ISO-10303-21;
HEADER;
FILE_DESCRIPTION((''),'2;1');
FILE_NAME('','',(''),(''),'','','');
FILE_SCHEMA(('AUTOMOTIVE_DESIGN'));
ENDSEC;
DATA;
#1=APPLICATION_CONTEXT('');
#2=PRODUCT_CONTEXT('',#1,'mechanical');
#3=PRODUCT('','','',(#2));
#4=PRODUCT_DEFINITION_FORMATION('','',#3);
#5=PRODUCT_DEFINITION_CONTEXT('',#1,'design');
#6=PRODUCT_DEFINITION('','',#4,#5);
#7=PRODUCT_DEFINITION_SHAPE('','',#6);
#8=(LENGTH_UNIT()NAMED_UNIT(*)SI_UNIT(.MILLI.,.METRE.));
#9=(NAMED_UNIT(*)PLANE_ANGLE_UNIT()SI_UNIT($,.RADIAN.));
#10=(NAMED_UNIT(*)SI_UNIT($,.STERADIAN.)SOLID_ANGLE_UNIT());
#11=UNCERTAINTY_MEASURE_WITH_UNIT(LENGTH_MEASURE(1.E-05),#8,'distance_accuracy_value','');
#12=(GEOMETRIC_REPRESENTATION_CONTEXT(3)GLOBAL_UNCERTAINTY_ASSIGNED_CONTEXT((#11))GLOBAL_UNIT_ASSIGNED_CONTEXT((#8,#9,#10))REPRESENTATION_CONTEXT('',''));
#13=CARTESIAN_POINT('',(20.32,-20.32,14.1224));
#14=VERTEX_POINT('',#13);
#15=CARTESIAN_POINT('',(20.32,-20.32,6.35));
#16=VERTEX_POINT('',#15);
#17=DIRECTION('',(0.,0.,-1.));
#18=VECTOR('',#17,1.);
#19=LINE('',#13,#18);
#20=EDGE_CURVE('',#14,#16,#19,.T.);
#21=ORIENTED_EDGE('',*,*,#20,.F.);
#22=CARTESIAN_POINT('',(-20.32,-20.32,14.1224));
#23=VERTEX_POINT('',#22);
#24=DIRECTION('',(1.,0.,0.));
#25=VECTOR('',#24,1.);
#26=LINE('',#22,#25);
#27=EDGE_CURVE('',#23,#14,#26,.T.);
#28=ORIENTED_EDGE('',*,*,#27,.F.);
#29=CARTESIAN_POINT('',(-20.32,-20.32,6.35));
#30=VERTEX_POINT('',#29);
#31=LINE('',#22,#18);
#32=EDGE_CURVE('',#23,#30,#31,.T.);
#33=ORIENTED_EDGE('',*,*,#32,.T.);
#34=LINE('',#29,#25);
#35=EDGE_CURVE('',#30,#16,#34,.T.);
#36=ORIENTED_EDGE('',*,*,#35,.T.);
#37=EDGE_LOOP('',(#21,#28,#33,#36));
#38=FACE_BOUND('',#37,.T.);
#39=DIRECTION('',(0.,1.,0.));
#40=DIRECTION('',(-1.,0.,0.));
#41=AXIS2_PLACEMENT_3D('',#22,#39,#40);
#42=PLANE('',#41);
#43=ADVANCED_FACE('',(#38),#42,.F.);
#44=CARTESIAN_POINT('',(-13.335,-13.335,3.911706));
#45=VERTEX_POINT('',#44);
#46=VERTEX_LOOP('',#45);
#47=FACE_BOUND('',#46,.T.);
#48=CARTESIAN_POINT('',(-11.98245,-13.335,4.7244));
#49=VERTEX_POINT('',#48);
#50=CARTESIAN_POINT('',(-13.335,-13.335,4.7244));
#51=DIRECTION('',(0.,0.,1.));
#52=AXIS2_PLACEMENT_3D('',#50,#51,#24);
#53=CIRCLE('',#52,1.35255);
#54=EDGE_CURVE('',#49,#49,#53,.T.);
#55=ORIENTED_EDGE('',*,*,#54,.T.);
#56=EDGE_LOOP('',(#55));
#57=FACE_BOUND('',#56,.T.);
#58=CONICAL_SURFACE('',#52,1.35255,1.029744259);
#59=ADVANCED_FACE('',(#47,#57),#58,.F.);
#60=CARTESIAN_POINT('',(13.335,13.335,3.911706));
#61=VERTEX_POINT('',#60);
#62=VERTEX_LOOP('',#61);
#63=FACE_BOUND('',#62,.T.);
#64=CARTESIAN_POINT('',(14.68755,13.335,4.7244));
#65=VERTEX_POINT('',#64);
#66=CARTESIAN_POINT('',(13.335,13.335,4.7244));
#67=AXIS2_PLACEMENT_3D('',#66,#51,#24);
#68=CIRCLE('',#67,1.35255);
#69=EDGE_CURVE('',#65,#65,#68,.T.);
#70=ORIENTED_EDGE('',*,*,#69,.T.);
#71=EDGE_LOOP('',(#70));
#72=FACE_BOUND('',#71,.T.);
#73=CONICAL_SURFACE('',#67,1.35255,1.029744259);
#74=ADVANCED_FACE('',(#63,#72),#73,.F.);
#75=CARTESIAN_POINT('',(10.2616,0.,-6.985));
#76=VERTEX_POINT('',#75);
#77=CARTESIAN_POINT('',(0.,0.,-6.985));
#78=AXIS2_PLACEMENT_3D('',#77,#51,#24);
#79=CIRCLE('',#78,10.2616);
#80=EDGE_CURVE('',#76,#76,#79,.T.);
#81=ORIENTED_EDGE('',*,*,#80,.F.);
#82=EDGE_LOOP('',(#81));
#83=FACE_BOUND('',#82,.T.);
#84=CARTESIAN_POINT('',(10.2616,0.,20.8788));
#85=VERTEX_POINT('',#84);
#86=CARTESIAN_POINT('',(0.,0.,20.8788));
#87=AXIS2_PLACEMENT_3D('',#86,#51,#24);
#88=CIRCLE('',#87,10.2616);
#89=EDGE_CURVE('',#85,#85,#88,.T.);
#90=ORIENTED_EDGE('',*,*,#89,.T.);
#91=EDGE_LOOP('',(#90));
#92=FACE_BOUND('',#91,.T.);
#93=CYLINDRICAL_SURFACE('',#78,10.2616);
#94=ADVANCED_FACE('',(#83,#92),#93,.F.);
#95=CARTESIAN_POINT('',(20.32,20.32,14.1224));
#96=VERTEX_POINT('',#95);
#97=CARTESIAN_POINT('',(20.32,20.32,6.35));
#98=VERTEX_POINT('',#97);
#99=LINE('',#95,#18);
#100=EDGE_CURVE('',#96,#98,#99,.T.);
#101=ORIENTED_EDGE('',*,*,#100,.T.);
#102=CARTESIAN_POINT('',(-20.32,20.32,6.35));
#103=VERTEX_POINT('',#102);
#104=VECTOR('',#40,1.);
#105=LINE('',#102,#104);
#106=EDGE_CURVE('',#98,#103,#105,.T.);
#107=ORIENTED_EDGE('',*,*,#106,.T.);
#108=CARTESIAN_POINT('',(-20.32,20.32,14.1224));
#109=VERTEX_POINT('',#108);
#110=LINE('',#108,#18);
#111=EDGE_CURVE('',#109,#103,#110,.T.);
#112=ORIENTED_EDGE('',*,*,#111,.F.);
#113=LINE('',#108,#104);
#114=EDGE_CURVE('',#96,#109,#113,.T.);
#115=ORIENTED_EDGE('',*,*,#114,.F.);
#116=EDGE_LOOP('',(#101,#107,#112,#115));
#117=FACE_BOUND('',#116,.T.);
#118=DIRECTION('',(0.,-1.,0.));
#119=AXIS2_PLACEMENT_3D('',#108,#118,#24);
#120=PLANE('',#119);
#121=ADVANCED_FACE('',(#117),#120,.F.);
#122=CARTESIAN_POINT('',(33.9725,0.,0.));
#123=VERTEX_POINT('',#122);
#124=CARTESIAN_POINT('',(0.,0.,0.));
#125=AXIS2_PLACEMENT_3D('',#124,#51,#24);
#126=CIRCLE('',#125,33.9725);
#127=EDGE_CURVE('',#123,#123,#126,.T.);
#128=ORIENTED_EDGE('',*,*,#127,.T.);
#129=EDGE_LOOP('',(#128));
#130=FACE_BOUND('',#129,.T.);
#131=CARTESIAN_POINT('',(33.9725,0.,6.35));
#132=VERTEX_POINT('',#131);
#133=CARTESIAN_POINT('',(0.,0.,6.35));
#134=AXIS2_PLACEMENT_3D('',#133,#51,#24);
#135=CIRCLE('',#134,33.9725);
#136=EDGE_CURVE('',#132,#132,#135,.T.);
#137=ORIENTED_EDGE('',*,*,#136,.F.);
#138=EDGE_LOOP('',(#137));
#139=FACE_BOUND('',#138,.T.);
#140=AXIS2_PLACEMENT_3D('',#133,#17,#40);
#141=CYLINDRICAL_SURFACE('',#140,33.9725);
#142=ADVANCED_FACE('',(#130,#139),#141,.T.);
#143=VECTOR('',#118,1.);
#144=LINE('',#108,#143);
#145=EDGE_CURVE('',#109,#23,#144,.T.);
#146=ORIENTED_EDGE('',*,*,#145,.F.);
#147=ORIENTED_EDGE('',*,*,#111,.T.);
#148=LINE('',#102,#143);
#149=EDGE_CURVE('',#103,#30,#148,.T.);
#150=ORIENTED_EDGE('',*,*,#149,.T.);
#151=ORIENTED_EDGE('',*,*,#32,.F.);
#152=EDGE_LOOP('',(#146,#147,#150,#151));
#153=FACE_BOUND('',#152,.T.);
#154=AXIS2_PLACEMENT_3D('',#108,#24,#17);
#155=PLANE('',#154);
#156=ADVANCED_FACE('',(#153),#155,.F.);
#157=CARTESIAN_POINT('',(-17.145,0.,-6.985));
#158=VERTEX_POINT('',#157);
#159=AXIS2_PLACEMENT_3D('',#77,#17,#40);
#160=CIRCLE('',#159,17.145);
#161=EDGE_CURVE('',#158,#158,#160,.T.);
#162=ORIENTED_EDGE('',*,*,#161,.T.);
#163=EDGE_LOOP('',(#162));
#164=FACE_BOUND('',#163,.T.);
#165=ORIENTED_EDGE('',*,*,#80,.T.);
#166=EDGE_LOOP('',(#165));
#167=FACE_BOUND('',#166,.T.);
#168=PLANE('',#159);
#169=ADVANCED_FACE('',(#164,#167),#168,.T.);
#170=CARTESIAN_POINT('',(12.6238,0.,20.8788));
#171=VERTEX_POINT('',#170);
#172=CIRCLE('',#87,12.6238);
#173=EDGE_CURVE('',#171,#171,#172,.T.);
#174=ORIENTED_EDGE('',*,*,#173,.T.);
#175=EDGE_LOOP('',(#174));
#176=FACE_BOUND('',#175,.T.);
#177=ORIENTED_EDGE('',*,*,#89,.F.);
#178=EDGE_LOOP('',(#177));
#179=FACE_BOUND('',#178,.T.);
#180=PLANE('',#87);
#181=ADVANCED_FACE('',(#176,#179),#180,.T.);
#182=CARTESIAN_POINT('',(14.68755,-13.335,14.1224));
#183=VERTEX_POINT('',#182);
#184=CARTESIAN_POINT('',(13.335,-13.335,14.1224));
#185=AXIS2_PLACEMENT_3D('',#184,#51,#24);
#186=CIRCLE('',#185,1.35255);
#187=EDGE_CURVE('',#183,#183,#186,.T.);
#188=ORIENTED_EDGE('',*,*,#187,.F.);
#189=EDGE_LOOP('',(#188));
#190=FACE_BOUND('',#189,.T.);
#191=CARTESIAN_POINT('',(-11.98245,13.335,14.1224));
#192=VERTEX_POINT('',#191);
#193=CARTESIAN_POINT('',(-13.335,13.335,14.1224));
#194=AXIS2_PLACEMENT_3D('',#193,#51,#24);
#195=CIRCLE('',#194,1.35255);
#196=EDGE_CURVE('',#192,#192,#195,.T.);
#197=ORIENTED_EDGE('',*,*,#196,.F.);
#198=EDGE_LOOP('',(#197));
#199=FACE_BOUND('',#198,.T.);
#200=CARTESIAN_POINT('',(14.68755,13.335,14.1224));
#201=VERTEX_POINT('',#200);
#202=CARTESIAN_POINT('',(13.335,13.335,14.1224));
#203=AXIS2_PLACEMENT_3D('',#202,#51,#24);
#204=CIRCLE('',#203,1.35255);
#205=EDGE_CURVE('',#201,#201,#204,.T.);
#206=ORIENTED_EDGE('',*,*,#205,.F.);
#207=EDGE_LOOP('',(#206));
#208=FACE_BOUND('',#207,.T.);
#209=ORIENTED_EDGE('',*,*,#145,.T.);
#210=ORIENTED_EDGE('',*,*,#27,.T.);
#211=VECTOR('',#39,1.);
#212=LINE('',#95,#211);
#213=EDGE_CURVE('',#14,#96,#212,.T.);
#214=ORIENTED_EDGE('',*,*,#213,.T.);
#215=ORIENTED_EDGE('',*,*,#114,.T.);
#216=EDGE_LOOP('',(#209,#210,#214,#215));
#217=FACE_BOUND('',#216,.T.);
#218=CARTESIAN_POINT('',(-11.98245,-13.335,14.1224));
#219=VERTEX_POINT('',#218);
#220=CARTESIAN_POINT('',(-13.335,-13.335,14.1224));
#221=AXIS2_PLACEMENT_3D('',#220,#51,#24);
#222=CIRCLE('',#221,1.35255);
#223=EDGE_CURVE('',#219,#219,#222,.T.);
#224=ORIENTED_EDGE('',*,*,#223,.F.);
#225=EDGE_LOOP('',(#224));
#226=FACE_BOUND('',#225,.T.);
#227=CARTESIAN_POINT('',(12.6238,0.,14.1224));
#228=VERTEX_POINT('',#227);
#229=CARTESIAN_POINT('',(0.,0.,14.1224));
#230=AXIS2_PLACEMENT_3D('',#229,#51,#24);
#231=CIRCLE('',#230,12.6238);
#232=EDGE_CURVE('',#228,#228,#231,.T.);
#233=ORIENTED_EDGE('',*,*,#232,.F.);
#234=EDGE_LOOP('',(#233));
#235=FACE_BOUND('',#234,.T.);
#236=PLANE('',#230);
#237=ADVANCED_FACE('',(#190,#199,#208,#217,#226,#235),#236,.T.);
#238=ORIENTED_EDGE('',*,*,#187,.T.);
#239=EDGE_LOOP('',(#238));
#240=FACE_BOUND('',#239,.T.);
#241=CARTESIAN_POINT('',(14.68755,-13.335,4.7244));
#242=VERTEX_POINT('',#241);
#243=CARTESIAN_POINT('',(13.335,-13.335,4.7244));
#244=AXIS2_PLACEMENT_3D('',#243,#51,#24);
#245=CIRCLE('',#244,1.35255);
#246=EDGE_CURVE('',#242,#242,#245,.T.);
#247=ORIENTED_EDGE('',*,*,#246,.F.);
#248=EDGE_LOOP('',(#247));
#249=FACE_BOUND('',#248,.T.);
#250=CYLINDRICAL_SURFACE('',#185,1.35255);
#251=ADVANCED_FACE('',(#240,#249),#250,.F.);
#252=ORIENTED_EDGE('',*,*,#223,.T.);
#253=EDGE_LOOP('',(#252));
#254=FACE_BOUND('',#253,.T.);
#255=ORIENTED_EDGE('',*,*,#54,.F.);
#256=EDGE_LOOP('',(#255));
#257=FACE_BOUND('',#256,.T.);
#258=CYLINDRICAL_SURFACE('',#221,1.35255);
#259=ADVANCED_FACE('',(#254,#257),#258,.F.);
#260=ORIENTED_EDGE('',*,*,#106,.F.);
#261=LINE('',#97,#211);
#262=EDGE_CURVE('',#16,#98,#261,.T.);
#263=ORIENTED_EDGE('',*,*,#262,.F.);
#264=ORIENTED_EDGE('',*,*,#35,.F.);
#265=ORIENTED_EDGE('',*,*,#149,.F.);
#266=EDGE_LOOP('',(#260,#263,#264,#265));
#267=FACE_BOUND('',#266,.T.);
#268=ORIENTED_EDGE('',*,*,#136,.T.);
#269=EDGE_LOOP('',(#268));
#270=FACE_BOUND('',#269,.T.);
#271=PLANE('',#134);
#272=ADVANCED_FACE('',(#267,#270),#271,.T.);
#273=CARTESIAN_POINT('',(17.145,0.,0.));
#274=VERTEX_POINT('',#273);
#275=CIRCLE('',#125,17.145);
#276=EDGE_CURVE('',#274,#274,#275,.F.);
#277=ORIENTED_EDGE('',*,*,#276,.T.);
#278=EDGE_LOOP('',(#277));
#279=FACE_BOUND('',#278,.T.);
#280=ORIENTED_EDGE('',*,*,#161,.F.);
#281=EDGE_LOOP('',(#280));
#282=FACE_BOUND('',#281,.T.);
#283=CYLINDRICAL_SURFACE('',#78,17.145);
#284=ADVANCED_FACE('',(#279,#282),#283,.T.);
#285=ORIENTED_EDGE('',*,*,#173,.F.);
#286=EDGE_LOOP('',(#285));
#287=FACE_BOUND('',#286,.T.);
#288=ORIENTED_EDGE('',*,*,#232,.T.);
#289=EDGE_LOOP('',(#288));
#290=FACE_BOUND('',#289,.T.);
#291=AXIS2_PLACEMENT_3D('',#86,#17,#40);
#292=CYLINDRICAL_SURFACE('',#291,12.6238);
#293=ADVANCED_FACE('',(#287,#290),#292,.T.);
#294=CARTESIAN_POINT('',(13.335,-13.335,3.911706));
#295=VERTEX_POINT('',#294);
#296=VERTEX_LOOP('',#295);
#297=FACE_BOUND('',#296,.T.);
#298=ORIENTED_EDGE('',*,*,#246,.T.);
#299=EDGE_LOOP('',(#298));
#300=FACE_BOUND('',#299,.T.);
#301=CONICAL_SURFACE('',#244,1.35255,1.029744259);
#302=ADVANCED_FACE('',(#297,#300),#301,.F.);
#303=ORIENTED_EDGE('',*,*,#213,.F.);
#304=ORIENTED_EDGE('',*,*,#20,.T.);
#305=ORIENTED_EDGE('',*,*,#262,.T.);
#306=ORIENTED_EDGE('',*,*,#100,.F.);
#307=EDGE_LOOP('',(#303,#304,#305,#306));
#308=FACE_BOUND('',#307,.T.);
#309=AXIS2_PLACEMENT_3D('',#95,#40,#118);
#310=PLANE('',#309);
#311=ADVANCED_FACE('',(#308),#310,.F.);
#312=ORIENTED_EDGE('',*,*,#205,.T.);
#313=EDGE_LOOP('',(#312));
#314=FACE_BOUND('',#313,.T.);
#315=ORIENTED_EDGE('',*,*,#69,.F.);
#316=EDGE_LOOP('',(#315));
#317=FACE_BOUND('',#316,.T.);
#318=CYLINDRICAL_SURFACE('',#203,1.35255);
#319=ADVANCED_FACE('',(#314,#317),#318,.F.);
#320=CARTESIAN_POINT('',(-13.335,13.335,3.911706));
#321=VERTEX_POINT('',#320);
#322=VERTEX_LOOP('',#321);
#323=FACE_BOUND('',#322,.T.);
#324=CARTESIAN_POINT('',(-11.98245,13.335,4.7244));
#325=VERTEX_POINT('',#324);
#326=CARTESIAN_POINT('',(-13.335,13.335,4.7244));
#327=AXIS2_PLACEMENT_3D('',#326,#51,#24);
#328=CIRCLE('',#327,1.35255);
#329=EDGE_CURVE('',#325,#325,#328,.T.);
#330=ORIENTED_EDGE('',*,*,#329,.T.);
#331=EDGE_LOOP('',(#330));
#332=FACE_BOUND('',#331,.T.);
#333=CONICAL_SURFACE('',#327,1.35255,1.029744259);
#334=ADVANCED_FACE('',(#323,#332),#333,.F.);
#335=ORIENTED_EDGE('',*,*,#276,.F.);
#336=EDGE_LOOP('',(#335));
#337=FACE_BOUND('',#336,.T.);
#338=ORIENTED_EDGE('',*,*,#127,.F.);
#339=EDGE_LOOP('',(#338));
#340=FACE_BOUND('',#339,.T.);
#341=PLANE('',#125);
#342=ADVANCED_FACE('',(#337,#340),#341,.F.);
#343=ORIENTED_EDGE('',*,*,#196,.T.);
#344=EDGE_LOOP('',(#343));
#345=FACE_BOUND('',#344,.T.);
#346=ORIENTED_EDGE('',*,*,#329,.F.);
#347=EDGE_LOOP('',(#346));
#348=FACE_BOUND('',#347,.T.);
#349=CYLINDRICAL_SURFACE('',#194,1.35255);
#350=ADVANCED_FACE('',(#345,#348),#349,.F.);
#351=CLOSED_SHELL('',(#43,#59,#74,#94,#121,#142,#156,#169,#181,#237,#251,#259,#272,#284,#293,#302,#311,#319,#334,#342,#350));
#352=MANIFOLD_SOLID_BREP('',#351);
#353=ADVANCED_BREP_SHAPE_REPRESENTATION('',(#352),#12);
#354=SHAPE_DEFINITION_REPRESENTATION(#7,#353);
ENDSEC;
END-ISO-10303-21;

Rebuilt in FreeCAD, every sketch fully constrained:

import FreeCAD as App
import Part
import Sketcher
Q = App.Units.Quantity


def add_polygon(sketch, points):
    """Adds a closed chain of lines whose ends are joined by coincident constraints."""
    first, n = sketch.GeometryCount, len(points)
    for a, b in zip(points, points[1:] + points[:1]):
        sketch.addGeometry(Part.LineSegment(App.Vector(*a, 0), App.Vector(*b, 0)), False)
    for i in range(n):
        sketch.addConstraint(Sketcher.Constraint("Coincident", first + i, 2, first + (i + 1) % n, 1))

doc = App.newDocument("Part")
body = doc.addObject("PartDesign::Body", "Body")

# Sketch on XY plane
sketch1 = doc.addObject("Sketcher::SketchObject", "Sketch")
body.addObject(sketch1)
sketch1.AttachmentSupport = (doc.XY_Plane, [""])
sketch1.MapMode = "FlatFace"
sketch1.addGeometry(Part.Circle(App.Vector(0, 0, 0), App.Vector(0, 0, 1), 34), False)
sketch1.addConstraint([
    Sketcher.Constraint("Coincident", 0, 3, -1, 1),
    Sketcher.Constraint("Diameter", 0, Q("2.675 in")),
])
pad1 = doc.addObject("PartDesign::Pad", "Pad")
body.addObject(pad1)
pad1.Profile = sketch1
pad1.Length = Q("0.25 in")

# Sketch on XY plane
sketch2 = doc.addObject("Sketcher::SketchObject", "Sketch001")
body.addObject(sketch2)
sketch2.AttachmentSupport = (doc.XY_Plane, [""])
sketch2.MapMode = "FlatFace"
sketch2.addGeometry(Part.Circle(App.Vector(0, 0, 0), App.Vector(0, 0, 1), 17), False)
sketch2.addConstraint([
    Sketcher.Constraint("Coincident", 0, 3, -1, 1),
    Sketcher.Constraint("Diameter", 0, Q("1.35 in")),
])
pad2 = doc.addObject("PartDesign::Pad", "Pad001")
body.addObject(pad2)
pad2.Profile = sketch2
pad2.Length = Q("0.275 in")
pad2.Reversed = True

# Sketch on XY plane
sketch3 = doc.addObject("Sketcher::SketchObject", "Sketch002")
body.addObject(sketch3)
sketch3.AttachmentSupport = (doc.XY_Plane, [""])
sketch3.MapMode = "FlatFace"
sketch3.AttachmentOffset = App.Placement(App.Vector(0, 0, 0.25 * 25.4), App.Rotation())
add_polygon(sketch3, [(-20, 20), (-20, -20), (20, -20), (20, 20)])  # lines 0-3
sketch3.addConstraint([
    Sketcher.Constraint("Vertical", 0),
    Sketcher.Constraint("Horizontal", 1),
    Sketcher.Constraint("Vertical", 2),
    Sketcher.Constraint("Horizontal", 3),
    Sketcher.Constraint("Symmetric", 0, 2, 2, 2, -1, 1),
    Sketcher.Constraint("Equal", 3, 0),
    Sketcher.Constraint("DistanceX", 1, 1, 1, 2, Q("1.6 in")),
])
pad3 = doc.addObject("PartDesign::Pad", "Pad002")
body.addObject(pad3)
pad3.Profile = sketch3
pad3.Length = Q("0.306 in")

# Sketch on XY plane
sketch4 = doc.addObject("Sketcher::SketchObject", "Sketch003")
body.addObject(sketch4)
sketch4.AttachmentSupport = (doc.XY_Plane, [""])
sketch4.MapMode = "FlatFace"
sketch4.AttachmentOffset = App.Placement(App.Vector(0, 0, 0.556 * 25.4), App.Rotation())
sketch4.addGeometry(Part.Circle(App.Vector(0, 0, 0), App.Vector(0, 0, 1), 10), False)
sketch4.addConstraint([
    Sketcher.Constraint("Coincident", 0, 3, -1, 1),
    Sketcher.Constraint("Diameter", 0, Q("0.808 in")),
])
pocket1 = doc.addObject("PartDesign::Pocket", "Pocket")
body.addObject(pocket1)
pocket1.Profile = sketch4
pocket1.Type = "ThroughAll"

# Sketch on XY plane
sketch5 = doc.addObject("Sketcher::SketchObject", "Sketch004")
body.addObject(sketch5)
sketch5.AttachmentSupport = (doc.XY_Plane, [""])
sketch5.MapMode = "FlatFace"
sketch5.AttachmentOffset = App.Placement(App.Vector(0, 0, 0.556 * 25.4), App.Rotation())
sketch5.addGeometry([
    Part.Circle(App.Vector(-13.3, 13.3, 0), App.Vector(0, 0, 1), 1.4),
    Part.Circle(App.Vector(13.3, 13.3, 0), App.Vector(0, 0, 1), 1.4),
    Part.Circle(App.Vector(13.3, -13.3, 0), App.Vector(0, 0, 1), 1.4),
    Part.Circle(App.Vector(-13.3, -13.3, 0), App.Vector(0, 0, 1), 1.4),
], False)
sketch5.addConstraint([
    Sketcher.Constraint("Equal", 0, 1),
    Sketcher.Constraint("Equal", 1, 2),
    Sketcher.Constraint("Equal", 2, 3),
    Sketcher.Constraint("Symmetric", 0, 3, 2, 3, -1, 1),
    Sketcher.Constraint("Symmetric", 1, 3, 3, 3, -1, 1),
    Sketcher.Constraint("Symmetric", 0, 3, 1, 3, -2),
    Sketcher.Constraint("Diameter", 0, Q("0.1065 in")),
    Sketcher.Constraint("DistanceX", 0, 3, 1, 3, Q("1.05 in")),
    Sketcher.Constraint("DistanceY", 2, 3, 1, 3, Q("1.05 in")),
])
doc.recompute()
hole = doc.addObject("PartDesign::Hole", "Hole")
body.addObject(hole)
hole.Profile = sketch5
hole.ThreadType = "None"
hole.Diameter = Q("0.1065 in")
hole.DepthType = "Dimension"
hole.Depth = Q("0.37 in")
hole.DrillPoint = "Angled"
hole.DrillPointAngle = 118

# Sketch on XY plane
sketch6 = doc.addObject("Sketcher::SketchObject", "Sketch005")
body.addObject(sketch6)
sketch6.AttachmentSupport = (doc.XY_Plane, [""])
sketch6.MapMode = "FlatFace"
sketch6.AttachmentOffset = App.Placement(App.Vector(0, 0, 0.556 * 25.4), App.Rotation())
sketch6.addGeometry([
    Part.Circle(App.Vector(0, 0, 0), App.Vector(0, 0, 1), 13),
    Part.Circle(App.Vector(0, 0, 0), App.Vector(0, 0, 1), 10),
], False)
sketch6.addConstraint([
    Sketcher.Constraint("Coincident", 0, 3, -1, 1),
    Sketcher.Constraint("Coincident", 1, 3, -1, 1),
    Sketcher.Constraint("Diameter", 0, Q("0.994 in")),
    Sketcher.Constraint("Diameter", 1, Q("0.808 in")),
])
pad4 = doc.addObject("PartDesign::Pad", "Pad003")
body.addObject(pad4)
pad4.Profile = sketch6
pad4.Length = Q("0.266 in")

doc.recompute()
